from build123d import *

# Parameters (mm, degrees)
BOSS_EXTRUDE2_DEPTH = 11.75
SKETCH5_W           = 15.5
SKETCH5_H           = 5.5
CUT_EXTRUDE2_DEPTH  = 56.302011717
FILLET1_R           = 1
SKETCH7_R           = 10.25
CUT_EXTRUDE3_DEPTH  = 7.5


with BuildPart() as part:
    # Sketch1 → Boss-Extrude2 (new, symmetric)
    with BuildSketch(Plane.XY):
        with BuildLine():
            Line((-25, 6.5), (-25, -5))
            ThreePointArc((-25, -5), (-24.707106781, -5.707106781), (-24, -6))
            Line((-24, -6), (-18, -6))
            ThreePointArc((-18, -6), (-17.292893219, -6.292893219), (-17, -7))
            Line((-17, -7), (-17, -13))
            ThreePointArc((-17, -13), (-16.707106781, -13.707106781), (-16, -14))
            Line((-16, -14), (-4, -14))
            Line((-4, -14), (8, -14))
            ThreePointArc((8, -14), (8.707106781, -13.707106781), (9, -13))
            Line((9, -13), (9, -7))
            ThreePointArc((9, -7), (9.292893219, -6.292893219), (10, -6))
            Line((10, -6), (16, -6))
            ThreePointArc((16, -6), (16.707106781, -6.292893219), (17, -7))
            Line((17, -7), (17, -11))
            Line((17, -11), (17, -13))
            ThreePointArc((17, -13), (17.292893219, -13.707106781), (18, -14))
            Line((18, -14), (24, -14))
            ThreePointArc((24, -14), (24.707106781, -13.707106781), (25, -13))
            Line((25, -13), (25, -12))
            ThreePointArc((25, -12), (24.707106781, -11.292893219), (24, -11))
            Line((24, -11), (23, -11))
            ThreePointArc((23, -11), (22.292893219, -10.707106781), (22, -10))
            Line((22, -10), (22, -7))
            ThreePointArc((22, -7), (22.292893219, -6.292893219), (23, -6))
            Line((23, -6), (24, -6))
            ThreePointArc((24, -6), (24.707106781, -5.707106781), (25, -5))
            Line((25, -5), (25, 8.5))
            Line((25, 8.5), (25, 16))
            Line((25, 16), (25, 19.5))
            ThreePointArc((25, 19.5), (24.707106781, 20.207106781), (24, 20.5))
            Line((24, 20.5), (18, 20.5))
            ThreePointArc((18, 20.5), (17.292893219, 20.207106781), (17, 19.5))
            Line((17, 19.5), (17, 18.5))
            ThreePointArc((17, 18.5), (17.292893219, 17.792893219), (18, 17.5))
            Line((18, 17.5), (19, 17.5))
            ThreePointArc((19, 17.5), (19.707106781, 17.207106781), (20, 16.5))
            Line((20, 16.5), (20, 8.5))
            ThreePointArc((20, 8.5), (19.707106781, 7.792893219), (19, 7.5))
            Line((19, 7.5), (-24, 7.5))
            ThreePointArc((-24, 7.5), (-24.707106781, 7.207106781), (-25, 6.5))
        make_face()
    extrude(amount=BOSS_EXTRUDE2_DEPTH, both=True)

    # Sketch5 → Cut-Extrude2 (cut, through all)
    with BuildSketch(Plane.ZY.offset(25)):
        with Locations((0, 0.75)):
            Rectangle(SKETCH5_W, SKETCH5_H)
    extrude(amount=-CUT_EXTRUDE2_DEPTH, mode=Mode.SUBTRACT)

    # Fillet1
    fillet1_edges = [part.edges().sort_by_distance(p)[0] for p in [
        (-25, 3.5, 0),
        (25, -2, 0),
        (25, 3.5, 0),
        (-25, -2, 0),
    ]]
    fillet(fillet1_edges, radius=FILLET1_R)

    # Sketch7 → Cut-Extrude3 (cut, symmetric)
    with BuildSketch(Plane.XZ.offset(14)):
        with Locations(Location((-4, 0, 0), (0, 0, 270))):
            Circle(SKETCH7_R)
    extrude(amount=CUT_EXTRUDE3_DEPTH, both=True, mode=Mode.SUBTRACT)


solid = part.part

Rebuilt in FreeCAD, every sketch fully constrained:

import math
import FreeCAD as App
import Part
import Sketcher
Q = App.Units.Quantity


def edges_at(feature, points):
    """Names of the edges that pass closest to the given points."""
    edges = feature.Shape.Edges
    near = lambda p: min(range(len(edges)), key=lambda i: edges[i].distToShape(Part.Vertex(*p))[0])
    return sorted({f"Edge{near(p) + 1}" for p in points})


def add_polygon(sketch, points):
    """Adds a closed chain of lines whose ends are joined by coincident constraints."""
    first, n = sketch.GeometryCount, len(points)
    for a, b in zip(points, points[1:] + points[:1]):
        sketch.addGeometry(Part.LineSegment(App.Vector(*a, 0), App.Vector(*b, 0)), False)
    for i in range(n):
        sketch.addConstraint(Sketcher.Constraint("Coincident", first + i, 2, first + (i + 1) % n, 1))

doc = App.newDocument("Part")
body = doc.addObject("PartDesign::Body", "Body")

# Sketch on XY plane
sketch1 = body.newObject("Sketcher::SketchObject", "Sketch")
sketch1.AttachmentSupport = (doc.getObject("XY_Plane"), [""])
sketch1.MapMode = "FlatFace"
sketch1.addGeometry([
    Part.LineSegment(App.Vector(-25, 6.5, 0), App.Vector(-25, -5, 0)),  # 0
    Part.ArcOfCircle(Part.Circle(App.Vector(-24, -5, 0), App.Vector(0, 0, 1), 1), math.radians(-180), math.radians(-90)),  # 1
    Part.LineSegment(App.Vector(-24, -6, 0), App.Vector(-18, -6, 0)),  # 2
    Part.ArcOfCircle(Part.Circle(App.Vector(-18, -7, 0), App.Vector(0, 0, 1), 1), math.radians(0), math.radians(90)),  # 3
    Part.LineSegment(App.Vector(-17, -7, 0), App.Vector(-17, -13, 0)),  # 4
    Part.ArcOfCircle(Part.Circle(App.Vector(-16, -13, 0), App.Vector(0, 0, 1), 1), math.radians(-180), math.radians(-90)),  # 5
    Part.LineSegment(App.Vector(-16, -14, 0), App.Vector(8, -14, 0)),  # 6
    Part.ArcOfCircle(Part.Circle(App.Vector(8, -13, 0), App.Vector(0, 0, 1), 1), math.radians(-90), math.radians(0)),  # 7
    Part.LineSegment(App.Vector(9, -13, 0), App.Vector(9, -7, 0)),  # 8
    Part.ArcOfCircle(Part.Circle(App.Vector(10, -7, 0), App.Vector(0, 0, 1), 1), math.radians(90), math.radians(180)),  # 9
    Part.LineSegment(App.Vector(10, -6, 0), App.Vector(16, -6, 0)),  # 10
    Part.ArcOfCircle(Part.Circle(App.Vector(16, -7, 0), App.Vector(0, 0, 1), 1), math.radians(0), math.radians(90)),  # 11
    Part.LineSegment(App.Vector(17, -7, 0), App.Vector(17, -13, 0)),  # 12
    Part.ArcOfCircle(Part.Circle(App.Vector(18, -13, 0), App.Vector(0, 0, 1), 1), math.radians(-180), math.radians(-90)),  # 13
    Part.LineSegment(App.Vector(18, -14, 0), App.Vector(24, -14, 0)),  # 14
    Part.ArcOfCircle(Part.Circle(App.Vector(24, -13, 0), App.Vector(0, 0, 1), 1), math.radians(-90), math.radians(0)),  # 15
    Part.LineSegment(App.Vector(25, -13, 0), App.Vector(25, -12, 0)),  # 16
    Part.ArcOfCircle(Part.Circle(App.Vector(24, -12, 0), App.Vector(0, 0, 1), 1), math.radians(0), math.radians(90)),  # 17
    Part.LineSegment(App.Vector(24, -11, 0), App.Vector(23, -11, 0)),  # 18
    Part.ArcOfCircle(Part.Circle(App.Vector(23, -10, 0), App.Vector(0, 0, 1), 1), math.radians(-180), math.radians(-90)),  # 19
    Part.LineSegment(App.Vector(22, -10, 0), App.Vector(22, -7, 0)),  # 20
    Part.ArcOfCircle(Part.Circle(App.Vector(23, -7, 0), App.Vector(0, 0, 1), 1), math.radians(90), math.radians(180)),  # 21
    Part.LineSegment(App.Vector(23, -6, 0), App.Vector(24, -6, 0)),  # 22
    Part.ArcOfCircle(Part.Circle(App.Vector(24, -5, 0), App.Vector(0, 0, 1), 1), math.radians(-90), math.radians(0)),  # 23
    Part.LineSegment(App.Vector(25, -5, 0), App.Vector(25, 19.5, 0)),  # 24
    Part.ArcOfCircle(Part.Circle(App.Vector(24, 19.5, 0), App.Vector(0, 0, 1), 1), math.radians(0), math.radians(90)),  # 25
    Part.LineSegment(App.Vector(24, 20.5, 0), App.Vector(18, 20.5, 0)),  # 26
    Part.ArcOfCircle(Part.Circle(App.Vector(18, 19.5, 0), App.Vector(0, 0, 1), 1), math.radians(90), math.radians(180)),  # 27
    Part.LineSegment(App.Vector(17, 19.5, 0), App.Vector(17, 18.5, 0)),  # 28
    Part.ArcOfCircle(Part.Circle(App.Vector(18, 18.5, 0), App.Vector(0, 0, 1), 1), math.radians(-180), math.radians(-90)),  # 29
    Part.LineSegment(App.Vector(18, 17.5, 0), App.Vector(19, 17.5, 0)),  # 30
    Part.ArcOfCircle(Part.Circle(App.Vector(19, 16.5, 0), App.Vector(0, 0, 1), 1), math.radians(0), math.radians(90)),  # 31
    Part.LineSegment(App.Vector(20, 16.5, 0), App.Vector(20, 8.5, 0)),  # 32
    Part.ArcOfCircle(Part.Circle(App.Vector(19, 8.5, 0), App.Vector(0, 0, 1), 1), math.radians(-90), math.radians(0)),  # 33
    Part.LineSegment(App.Vector(19, 7.5, 0), App.Vector(-24, 7.5, 0)),  # 34
    Part.ArcOfCircle(Part.Circle(App.Vector(-24, 6.5, 0), App.Vector(0, 0, 1), 1), math.radians(90), math.radians(180)),  # 35
], False)
sketch1.addConstraint([
    Sketcher.Constraint("Tangent", 0, 2, 1, 1),
    Sketcher.Constraint("Tangent", 1, 2, 2, 1),
    Sketcher.Constraint("Tangent", 2, 2, 3, 2),
    Sketcher.Constraint("Tangent", 3, 1, 4, 1),
    Sketcher.Constraint("Tangent", 4, 2, 5, 1),
    Sketcher.Constraint("Tangent", 5, 2, 6, 1),
    Sketcher.Constraint("Tangent", 6, 2, 7, 1),
    Sketcher.Constraint("Tangent", 7, 2, 8, 1),
    Sketcher.Constraint("Tangent", 8, 2, 9, 2),
    Sketcher.Constraint("Tangent", 9, 1, 10, 1),
    Sketcher.Constraint("Tangent", 10, 2, 11, 2),
    Sketcher.Constraint("Tangent", 11, 1, 12, 1),
    Sketcher.Constraint("Tangent", 12, 2, 13, 1),
    Sketcher.Constraint("Tangent", 13, 2, 14, 1),
    Sketcher.Constraint("Tangent", 14, 2, 15, 1),
    Sketcher.Constraint("Tangent", 15, 2, 16, 1),
    Sketcher.Constraint("Tangent", 16, 2, 17, 1),
    Sketcher.Constraint("Tangent", 17, 2, 18, 1),
    Sketcher.Constraint("Tangent", 18, 2, 19, 2),
    Sketcher.Constraint("Tangent", 19, 1, 20, 1),
    Sketcher.Constraint("Tangent", 20, 2, 21, 2),
    Sketcher.Constraint("Tangent", 21, 1, 22, 1),
    Sketcher.Constraint("Tangent", 22, 2, 23, 1),
    Sketcher.Constraint("Tangent", 23, 2, 24, 1),
    Sketcher.Constraint("Tangent", 24, 2, 25, 1),
    Sketcher.Constraint("Tangent", 25, 2, 26, 1),
    Sketcher.Constraint("Tangent", 26, 2, 27, 1),
    Sketcher.Constraint("Tangent", 27, 2, 28, 1),
    Sketcher.Constraint("Tangent", 28, 2, 29, 1),
    Sketcher.Constraint("Tangent", 29, 2, 30, 1),
    Sketcher.Constraint("Tangent", 30, 2, 31, 2),
    Sketcher.Constraint("Tangent", 31, 1, 32, 1),
    Sketcher.Constraint("Tangent", 32, 2, 33, 2),
    Sketcher.Constraint("Tangent", 33, 1, 34, 1),
    Sketcher.Constraint("Tangent", 34, 2, 35, 1),
    Sketcher.Constraint("Tangent", 35, 2, 0, 1),
    Sketcher.Constraint("Vertical", 0),
    Sketcher.Constraint("Horizontal", 2),
    Sketcher.Constraint("Vertical", 4),
    Sketcher.Constraint("Horizontal", 6),
    Sketcher.Constraint("Vertical", 8),
    Sketcher.Constraint("Horizontal", 10),
    Sketcher.Constraint("Vertical", 12),
    Sketcher.Constraint("Horizontal", 14),
    Sketcher.Constraint("Vertical", 16),
    Sketcher.Constraint("Horizontal", 18),
    Sketcher.Constraint("Vertical", 20),
    Sketcher.Constraint("Horizontal", 22),
    Sketcher.Constraint("Vertical", 24),
    Sketcher.Constraint("Horizontal", 26),
    Sketcher.Constraint("Vertical", 28),
    Sketcher.Constraint("Horizontal", 30),
    Sketcher.Constraint("Vertical", 32),
    Sketcher.Constraint("Horizontal", 34),
    Sketcher.Constraint("Equal", 1, 3),
    Sketcher.Constraint("Equal", 3, 5),
    Sketcher.Constraint("Equal", 5, 7),
    Sketcher.Constraint("Equal", 7, 9),
    Sketcher.Constraint("Equal", 9, 11),
    Sketcher.Constraint("Equal", 11, 13),
    Sketcher.Constraint("Equal", 13, 15),
    Sketcher.Constraint("Equal", 15, 17),
    Sketcher.Constraint("Equal", 17, 19),
    Sketcher.Constraint("Equal", 19, 21),
    Sketcher.Constraint("Equal", 21, 23),
    Sketcher.Constraint("Equal", 23, 25),
    Sketcher.Constraint("Equal", 25, 27),
    Sketcher.Constraint("Equal", 27, 29),
    Sketcher.Constraint("Equal", 29, 31),
    Sketcher.Constraint("Equal", 31, 33),
    Sketcher.Constraint("Equal", 33, 35),
    Sketcher.Constraint("Symmetric", 1, 3, 23, 3, -2),
    Sketcher.Constraint("Symmetric", 3, 1, 11, 1, -2),
    Sketcher.Constraint("Horizontal", 7, 3, 13, 3),
    Sketcher.Constraint("Vertical", 17, 3, 23, 3),
    Sketcher.Constraint("Vertical", 13, 3, 27, 3),
    Sketcher.Constraint("Equal", 2, 10),
    Sketcher.Constraint("Equal", 22, 30),
    Sketcher.Constraint("Equal", 26, 4),
    Sketcher.Constraint("Equal", 30, 16),
    Sketcher.Constraint("Equal", 16, 28),
    Sketcher.Constraint("Radius", 1, Q("1 mm")),
    Sketcher.Constraint("DistanceX", 2, 1, 2, 2, Q("6 mm")),
    Sketcher.Constraint("DistanceX", 6, 1, 6, 2, Q("24 mm")),
    Sketcher.Constraint("DistanceX", 18, 2, 18, 1, Q("1 mm")),
    Sketcher.Constraint("DistanceY", 32, 2, 32, 1, Q("8 mm")),
    Sketcher.Constraint("DistanceY", 0, 2, 0, 1, Q("11.5 mm")),
    Sketcher.Constraint("DistanceY", 1, 3, -1, 1, Q("5 mm")),
])
pad1 = body.newObject("PartDesign::Pad", "Pad")
pad1.Profile = sketch1
pad1.Length = 23.5
pad1.Midplane = True

# Sketch on YZ plane
sketch2 = body.newObject("Sketcher::SketchObject", "Sketch001")
sketch2.AttachmentSupport = (doc.getObject("YZ_Plane"), [""])
sketch2.MapMode = "FlatFace"
sketch2.AttachmentOffset = App.Placement(App.Vector(0, 0, -25), App.Rotation())
add_polygon(sketch2, [(3.5, -7.75), (-2, -7.75), (-2, 7.75), (3.5, 7.75)])  # lines 0-3
sketch2.addConstraint([
    Sketcher.Constraint("Horizontal", 0),
    Sketcher.Constraint("Vertical", 1),
    Sketcher.Constraint("Horizontal", 2),
    Sketcher.Constraint("Vertical", 3),
    Sketcher.Constraint("DistanceX", 0, 2, 0, 1, Q("5.5 mm")),
    Sketcher.Constraint("DistanceY", 1, 1, 1, 2, Q("15.5 mm")),
    Sketcher.Constraint("DistanceX", 0, 2, -1, 1, Q("2 mm")),
    Sketcher.Constraint("DistanceY", 0, 2, -1, 1, Q("7.75 mm")),
])
pocket1 = body.newObject("PartDesign::Pocket", "Pocket")
pocket1.Profile = sketch2
pocket1.Type = "ThroughAll"
pocket1.Reversed = True
doc.recompute()

fillet = body.newObject("PartDesign::Fillet", "Fillet")
fillet.Base = (pocket1, edges_at(pocket1, [
    (-25, 3.5, 0),
    (25, -2, 0),
    (25, 3.5, 0),
    (-25, -2, 0),
]))
fillet.Radius = 1

# Sketch on XZ plane
sketch3 = body.newObject("Sketcher::SketchObject", "Sketch002")
sketch3.AttachmentSupport = (doc.getObject("XZ_Plane"), [""])
sketch3.MapMode = "FlatFace"
sketch3.AttachmentOffset = App.Placement(App.Vector(0, 0, 14), App.Rotation())
sketch3.addGeometry(Part.Circle(App.Vector(-4, 0, 0), App.Vector(0, 0, 1), 10.25), False)
sketch3.addConstraint([
    Sketcher.Constraint("PointOnObject", 0, 3, -1),
    Sketcher.Constraint("Diameter", 0, Q("20.5 mm")),
    Sketcher.Constraint("DistanceX", 0, 3, -1, 1, Q("4 mm")),
])
pocket2 = body.newObject("PartDesign::Pocket", "Pocket001")
pocket2.Profile = sketch3
pocket2.Length = 15
pocket2.Midplane = True

doc.recompute()
